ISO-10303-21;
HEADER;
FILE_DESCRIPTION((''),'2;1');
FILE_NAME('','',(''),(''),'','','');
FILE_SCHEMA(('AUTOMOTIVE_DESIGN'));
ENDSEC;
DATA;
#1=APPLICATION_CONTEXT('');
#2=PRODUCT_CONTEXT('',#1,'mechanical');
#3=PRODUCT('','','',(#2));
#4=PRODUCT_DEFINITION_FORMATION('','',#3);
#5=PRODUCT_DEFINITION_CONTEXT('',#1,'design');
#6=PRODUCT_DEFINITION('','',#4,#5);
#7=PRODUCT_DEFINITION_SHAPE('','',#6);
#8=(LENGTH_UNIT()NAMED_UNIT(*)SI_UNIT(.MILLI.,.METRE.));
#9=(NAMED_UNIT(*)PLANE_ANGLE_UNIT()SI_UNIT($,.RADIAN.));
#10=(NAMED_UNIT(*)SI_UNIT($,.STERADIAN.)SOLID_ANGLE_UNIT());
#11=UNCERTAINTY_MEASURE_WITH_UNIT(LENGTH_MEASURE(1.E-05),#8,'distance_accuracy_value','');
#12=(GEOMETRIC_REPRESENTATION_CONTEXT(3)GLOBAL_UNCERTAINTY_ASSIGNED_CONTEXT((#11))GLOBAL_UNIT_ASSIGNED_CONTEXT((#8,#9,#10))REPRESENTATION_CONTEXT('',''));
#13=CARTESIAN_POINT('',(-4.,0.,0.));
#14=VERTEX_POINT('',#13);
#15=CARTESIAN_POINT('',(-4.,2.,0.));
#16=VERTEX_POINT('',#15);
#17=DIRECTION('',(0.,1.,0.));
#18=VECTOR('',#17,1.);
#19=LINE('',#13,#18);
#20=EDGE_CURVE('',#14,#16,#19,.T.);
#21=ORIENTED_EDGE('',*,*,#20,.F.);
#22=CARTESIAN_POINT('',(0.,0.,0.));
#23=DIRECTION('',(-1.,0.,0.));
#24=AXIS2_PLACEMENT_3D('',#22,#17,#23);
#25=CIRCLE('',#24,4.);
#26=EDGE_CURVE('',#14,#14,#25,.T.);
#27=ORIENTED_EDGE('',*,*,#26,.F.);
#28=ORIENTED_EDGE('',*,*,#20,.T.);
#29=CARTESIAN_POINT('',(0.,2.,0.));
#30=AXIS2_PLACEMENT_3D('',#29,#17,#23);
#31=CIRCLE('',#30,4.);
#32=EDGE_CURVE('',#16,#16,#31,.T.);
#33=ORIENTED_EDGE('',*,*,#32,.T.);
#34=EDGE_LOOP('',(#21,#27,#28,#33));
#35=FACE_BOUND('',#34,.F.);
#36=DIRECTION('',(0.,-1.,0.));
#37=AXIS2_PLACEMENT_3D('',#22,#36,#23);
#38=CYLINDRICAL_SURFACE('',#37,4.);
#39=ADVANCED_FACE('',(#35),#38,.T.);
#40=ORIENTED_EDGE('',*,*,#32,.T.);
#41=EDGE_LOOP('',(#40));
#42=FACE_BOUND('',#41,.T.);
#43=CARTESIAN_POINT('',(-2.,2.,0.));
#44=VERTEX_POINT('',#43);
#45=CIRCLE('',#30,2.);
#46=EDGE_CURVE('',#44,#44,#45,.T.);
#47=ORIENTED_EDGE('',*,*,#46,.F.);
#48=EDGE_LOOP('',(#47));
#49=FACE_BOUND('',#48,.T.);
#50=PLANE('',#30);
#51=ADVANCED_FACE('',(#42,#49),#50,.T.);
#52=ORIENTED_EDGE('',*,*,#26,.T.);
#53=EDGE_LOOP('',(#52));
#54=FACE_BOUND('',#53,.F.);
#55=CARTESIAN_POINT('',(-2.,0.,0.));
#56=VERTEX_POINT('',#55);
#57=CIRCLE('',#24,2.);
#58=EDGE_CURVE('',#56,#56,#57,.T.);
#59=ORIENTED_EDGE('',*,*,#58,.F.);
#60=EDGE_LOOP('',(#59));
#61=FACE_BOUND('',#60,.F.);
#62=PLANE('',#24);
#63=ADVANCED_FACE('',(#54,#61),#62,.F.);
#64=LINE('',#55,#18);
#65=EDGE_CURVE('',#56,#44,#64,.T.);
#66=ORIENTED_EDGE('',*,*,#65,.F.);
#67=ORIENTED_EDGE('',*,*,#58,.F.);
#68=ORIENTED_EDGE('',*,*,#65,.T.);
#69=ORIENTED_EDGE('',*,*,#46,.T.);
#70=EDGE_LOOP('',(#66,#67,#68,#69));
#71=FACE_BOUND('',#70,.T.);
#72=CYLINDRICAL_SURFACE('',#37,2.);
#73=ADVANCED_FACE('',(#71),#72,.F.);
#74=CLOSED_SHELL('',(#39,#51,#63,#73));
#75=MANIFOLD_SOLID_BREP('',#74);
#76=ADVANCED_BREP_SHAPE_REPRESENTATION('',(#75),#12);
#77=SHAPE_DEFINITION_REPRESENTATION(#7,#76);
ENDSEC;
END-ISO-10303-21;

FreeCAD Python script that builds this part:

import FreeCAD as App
import Part
import Sketcher

V = App.Vector

doc = App.newDocument("Part")
body = doc.addObject("PartDesign::Body", "Body")

# Sketch on XZ plane
sketch1 = body.newObject("Sketcher::SketchObject", "Sketch")
sketch1.AttachmentSupport = (doc.getObject("XZ_Plane"), [""])
sketch1.MapMode = "FlatFace"
sketch1.addGeometry([
    Part.Circle(V(0, 0, 0), V(0, 0, 1), 4),
    Part.Circle(V(0, 0, 0), V(0, 0, 1), 2),
], False)
sketch1.addConstraint([
    Sketcher.Constraint("Coincident", 0, 3, -1, 1),
    Sketcher.Constraint("Coincident", 1, 3, -1, 1),
    Sketcher.Constraint("Diameter", 0, 8.0),
    Sketcher.Constraint("Diameter", 1, 4.0),
])
pad1 = body.newObject("PartDesign::Pad", "Pad")
pad1.Profile = sketch1
pad1.Length = 2
pad1.Reversed = True

doc.recompute()
